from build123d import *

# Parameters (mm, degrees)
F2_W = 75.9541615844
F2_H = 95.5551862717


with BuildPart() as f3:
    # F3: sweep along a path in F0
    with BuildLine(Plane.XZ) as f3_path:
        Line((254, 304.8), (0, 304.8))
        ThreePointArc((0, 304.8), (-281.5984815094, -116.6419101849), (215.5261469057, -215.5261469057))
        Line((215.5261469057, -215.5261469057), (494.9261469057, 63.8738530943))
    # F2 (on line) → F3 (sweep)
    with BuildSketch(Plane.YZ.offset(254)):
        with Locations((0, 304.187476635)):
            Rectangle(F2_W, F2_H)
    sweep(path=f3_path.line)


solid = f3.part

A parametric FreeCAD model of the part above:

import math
import FreeCAD as App
import Part
import Sketcher
from FreeCAD import Vector
Q = App.Units.Quantity


def add_polygon(sketch, points):
    """Adds a closed chain of lines whose ends are joined by coincident constraints."""
    first, n = sketch.GeometryCount, len(points)
    for a, b in zip(points, points[1:] + points[:1]):
        sketch.addGeometry(Part.LineSegment(App.Vector(*a, 0), App.Vector(*b, 0)), False)
    for i in range(n):
        sketch.addConstraint(Sketcher.Constraint("Coincident", first + i, 2, first + (i + 1) % n, 1))

doc = App.newDocument("Part")
body = doc.addObject("PartDesign::Body", "Body")

# Sketch on YZ plane
sketch1 = body.newObject("Sketcher::SketchObject", "Sketch")
sketch1.AttachmentSupport = (doc.getObject("YZ_Plane"), [""])
sketch1.MapMode = "FlatFace"
sketch1.AttachmentOffset = App.Placement(Vector(0, 0, 10 * 25.4), App.Rotation())
add_polygon(sketch1, [(-38, 352), (-38, 256), (38, 256), (38, 352)])  # lines 0-3
sketch1.addConstraint([
    Sketcher.Constraint("Vertical", 0),
    Sketcher.Constraint("Horizontal", 1),
    Sketcher.Constraint("Vertical", 2),
    Sketcher.Constraint("Horizontal", 3),
    Sketcher.Constraint("DistanceX", 1, 1, 1, 2, Q("75.954162 mm")),
    Sketcher.Constraint("DistanceY", 0, 2, 0, 1, Q("95.555186 mm")),
    Sketcher.Constraint("DistanceX", 0, 2, -1, 1, Q("37.977081 mm")),
    Sketcher.Constraint("DistanceY", -1, 1, 2, 2, Q("351.96507 mm")),
])

# Sketch on XZ plane
sketch2 = body.newObject("Sketcher::SketchObject", "Sketch001")
sketch2.AttachmentSupport = (doc.getObject("XZ_Plane"), [""])
sketch2.MapMode = "FlatFace"
sketch2.addGeometry([
    Part.LineSegment(Vector(254, 305, 0), Vector(0, 305, 0)),
    Part.ArcOfCircle(Part.Circle(Vector(0, 0, 0), Vector(0, 0, 1), 305), math.radians(90), math.radians(315)),
    Part.LineSegment(Vector(216, -216, 0), Vector(495, 64, 0)),
], False)
sketch2.addConstraint([
    Sketcher.Constraint("Tangent", 0, 2, 1, 1),
    Sketcher.Constraint("Tangent", 1, 2, 2, 1),
    Sketcher.Constraint("Horizontal", 0),
    Sketcher.Constraint("Coincident", 1, 3, -1, 1),
    Sketcher.Constraint("Radius", 1, Q("12 in")),
    Sketcher.Constraint("DistanceX", 0, 2, 0, 1, Q("10 in")),
    Sketcher.Constraint("Angle", 2, Q("45 deg")),
    Sketcher.Constraint("DistanceX", 1, 2, 2, 2, Q("11 in")),
])
doc.recompute()

additivepipe = body.newObject("PartDesign::AdditivePipe", "AdditivePipe")
additivepipe.Profile = sketch1
additivepipe.Spine = (sketch2, ["Edge1", "Edge2", "Edge3"])

doc.recompute()
